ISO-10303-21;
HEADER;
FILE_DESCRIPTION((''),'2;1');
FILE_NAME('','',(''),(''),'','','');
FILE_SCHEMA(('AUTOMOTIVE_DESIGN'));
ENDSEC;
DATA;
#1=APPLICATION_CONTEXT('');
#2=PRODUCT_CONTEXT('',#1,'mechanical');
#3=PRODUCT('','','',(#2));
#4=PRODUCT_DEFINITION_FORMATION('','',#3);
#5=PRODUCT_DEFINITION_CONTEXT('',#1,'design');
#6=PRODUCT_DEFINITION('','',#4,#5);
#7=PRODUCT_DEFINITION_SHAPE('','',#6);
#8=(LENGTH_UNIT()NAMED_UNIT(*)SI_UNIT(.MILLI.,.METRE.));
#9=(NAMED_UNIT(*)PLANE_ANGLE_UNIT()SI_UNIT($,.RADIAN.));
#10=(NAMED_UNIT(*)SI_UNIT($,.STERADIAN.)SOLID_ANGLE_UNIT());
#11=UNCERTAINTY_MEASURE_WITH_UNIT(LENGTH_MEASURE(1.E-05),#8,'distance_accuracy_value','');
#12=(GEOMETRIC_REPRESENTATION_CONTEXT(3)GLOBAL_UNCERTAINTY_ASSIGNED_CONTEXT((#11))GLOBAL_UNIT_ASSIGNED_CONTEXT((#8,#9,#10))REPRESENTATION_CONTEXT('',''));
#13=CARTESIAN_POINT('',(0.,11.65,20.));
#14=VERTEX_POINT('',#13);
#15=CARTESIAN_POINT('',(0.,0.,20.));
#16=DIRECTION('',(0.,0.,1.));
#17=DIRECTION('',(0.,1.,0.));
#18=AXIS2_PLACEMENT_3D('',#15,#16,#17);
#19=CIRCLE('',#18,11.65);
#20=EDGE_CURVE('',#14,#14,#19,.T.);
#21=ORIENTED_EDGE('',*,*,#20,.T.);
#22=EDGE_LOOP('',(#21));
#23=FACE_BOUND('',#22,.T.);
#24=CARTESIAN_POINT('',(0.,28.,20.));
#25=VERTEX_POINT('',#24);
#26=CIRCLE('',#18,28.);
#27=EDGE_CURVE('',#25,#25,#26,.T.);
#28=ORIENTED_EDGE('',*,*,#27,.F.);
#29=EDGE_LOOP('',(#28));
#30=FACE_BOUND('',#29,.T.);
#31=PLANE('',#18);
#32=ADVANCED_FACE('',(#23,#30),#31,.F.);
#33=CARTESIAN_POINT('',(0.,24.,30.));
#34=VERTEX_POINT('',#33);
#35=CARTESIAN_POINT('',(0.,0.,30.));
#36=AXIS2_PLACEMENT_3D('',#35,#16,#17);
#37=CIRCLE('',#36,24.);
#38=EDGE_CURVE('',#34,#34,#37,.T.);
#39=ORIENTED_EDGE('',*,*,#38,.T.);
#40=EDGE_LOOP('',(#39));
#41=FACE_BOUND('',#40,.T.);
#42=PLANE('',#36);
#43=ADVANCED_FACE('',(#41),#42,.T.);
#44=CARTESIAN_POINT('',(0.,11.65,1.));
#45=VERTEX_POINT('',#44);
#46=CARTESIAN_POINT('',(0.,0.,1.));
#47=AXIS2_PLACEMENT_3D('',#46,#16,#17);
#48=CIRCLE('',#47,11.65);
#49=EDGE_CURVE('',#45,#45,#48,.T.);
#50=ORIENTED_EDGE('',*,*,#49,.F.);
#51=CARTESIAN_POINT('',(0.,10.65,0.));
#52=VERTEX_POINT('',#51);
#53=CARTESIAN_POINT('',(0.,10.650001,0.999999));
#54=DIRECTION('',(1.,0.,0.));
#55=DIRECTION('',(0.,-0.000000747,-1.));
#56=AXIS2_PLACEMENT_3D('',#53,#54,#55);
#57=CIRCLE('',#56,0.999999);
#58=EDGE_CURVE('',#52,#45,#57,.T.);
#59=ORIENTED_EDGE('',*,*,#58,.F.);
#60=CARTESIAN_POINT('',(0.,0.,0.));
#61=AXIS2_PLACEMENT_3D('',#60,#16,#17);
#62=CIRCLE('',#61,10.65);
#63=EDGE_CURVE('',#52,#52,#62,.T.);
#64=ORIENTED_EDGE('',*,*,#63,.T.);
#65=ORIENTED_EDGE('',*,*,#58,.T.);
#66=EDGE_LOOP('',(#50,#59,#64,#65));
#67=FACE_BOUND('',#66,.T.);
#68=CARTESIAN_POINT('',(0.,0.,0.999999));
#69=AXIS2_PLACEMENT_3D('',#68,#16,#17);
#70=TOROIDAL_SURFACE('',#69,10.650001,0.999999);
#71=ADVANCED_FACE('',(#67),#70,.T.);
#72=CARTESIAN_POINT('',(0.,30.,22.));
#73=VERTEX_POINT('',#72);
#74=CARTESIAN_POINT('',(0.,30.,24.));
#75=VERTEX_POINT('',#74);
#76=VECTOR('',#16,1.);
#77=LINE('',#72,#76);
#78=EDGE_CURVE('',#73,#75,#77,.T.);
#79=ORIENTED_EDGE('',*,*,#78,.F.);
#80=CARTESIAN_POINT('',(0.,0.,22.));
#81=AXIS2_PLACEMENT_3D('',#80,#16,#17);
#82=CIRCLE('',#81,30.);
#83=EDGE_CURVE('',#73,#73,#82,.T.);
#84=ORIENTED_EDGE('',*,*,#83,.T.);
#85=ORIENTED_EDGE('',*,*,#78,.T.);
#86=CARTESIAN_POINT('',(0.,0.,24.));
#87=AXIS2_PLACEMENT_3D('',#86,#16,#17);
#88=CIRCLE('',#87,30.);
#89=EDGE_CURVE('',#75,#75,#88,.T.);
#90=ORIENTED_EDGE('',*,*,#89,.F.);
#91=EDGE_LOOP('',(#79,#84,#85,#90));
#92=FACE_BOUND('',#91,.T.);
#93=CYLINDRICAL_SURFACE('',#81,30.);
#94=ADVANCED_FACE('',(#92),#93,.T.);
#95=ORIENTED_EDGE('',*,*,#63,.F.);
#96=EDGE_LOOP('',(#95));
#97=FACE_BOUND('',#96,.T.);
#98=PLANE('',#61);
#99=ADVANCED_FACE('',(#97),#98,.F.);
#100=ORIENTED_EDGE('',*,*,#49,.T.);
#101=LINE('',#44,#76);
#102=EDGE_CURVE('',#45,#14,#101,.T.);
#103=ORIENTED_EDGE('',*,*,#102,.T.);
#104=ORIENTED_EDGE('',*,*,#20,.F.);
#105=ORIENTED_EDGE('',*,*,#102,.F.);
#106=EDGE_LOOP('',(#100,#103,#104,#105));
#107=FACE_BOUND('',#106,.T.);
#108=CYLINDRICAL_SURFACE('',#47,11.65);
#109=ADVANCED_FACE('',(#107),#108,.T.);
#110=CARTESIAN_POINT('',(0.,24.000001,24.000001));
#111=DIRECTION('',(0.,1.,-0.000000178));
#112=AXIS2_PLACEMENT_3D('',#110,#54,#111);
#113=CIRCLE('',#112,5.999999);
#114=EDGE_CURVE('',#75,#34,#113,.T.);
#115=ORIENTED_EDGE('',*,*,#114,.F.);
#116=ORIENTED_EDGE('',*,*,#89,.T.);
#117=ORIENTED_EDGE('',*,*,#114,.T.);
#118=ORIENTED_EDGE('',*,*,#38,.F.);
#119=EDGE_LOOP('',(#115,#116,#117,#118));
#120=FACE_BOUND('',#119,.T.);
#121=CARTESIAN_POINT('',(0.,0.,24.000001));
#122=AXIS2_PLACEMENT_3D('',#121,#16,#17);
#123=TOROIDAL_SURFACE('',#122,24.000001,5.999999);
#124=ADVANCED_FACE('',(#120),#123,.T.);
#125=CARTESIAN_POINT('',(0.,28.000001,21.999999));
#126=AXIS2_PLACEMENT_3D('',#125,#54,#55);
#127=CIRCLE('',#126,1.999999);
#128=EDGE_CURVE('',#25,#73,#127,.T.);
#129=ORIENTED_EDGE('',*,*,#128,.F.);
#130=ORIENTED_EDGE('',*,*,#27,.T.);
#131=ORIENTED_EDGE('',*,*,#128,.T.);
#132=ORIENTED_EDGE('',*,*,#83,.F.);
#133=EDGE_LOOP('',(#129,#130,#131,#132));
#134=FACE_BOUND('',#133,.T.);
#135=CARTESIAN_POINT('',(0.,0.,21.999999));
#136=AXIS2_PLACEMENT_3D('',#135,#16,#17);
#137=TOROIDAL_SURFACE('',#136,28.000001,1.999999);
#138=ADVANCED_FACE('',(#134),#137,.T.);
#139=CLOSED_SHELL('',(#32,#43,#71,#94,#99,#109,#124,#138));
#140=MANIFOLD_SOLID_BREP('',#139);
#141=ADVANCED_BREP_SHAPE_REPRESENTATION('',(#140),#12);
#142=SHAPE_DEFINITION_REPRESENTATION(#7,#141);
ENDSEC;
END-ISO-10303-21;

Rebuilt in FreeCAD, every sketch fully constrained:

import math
import FreeCAD as App
import Part
import Sketcher
from FreeCAD import Vector
Q = App.Units.Quantity

doc = App.newDocument("Part")
body = doc.addObject("PartDesign::Body", "Body")

# Sketch on YZ plane
sketch1 = body.newObject("Sketcher::SketchObject", "Sketch")
sketch1.AttachmentSupport = (doc.getObject("YZ_Plane"), [""])
sketch1.MapMode = "FlatFace"
sketch1.addGeometry(Part.LineSegment(Vector(0, 30, 0), Vector(0, 0, 0)), False)
sketch1.addGeometry(Part.LineSegment(Vector(0, 0, 0), Vector(10.7, 0, 0)), False)
sketch1.addGeometry(Part.ArcOfCircle(Part.Circle(Vector(10.7, 1, 0), Vector(0, 0, 1), 1), math.radians(-90), math.radians(0)), False)
sketch1.addGeometry(Part.LineSegment(Vector(11.7, 1, 0), Vector(11.7, 20, 0)), False)
sketch1.addGeometry(Part.LineSegment(Vector(11.7, 20, 0), Vector(28, 20, 0)), False)
sketch1.addGeometry(Part.ArcOfCircle(Part.Circle(Vector(28, 22, 0), Vector(0, 0, 1), 2), math.radians(-90), math.radians(0)), False)
sketch1.addGeometry(Part.LineSegment(Vector(30, 22, 0), Vector(30, 24, 0)), False)
sketch1.addGeometry(Part.ArcOfCircle(Part.Circle(Vector(24, 24, 0), Vector(0, 0, 1), 6), math.radians(0), math.radians(90)), False)
sketch1.addGeometry(Part.LineSegment(Vector(24, 30, 0), Vector(0, 30, 0)), False)
sketch1.addConstraint(Sketcher.Constraint("Coincident", 0, 2, 1, 1))
sketch1.addConstraint(Sketcher.Constraint("Tangent", 1, 2, 2, 1))
sketch1.addConstraint(Sketcher.Constraint("Tangent", 2, 2, 3, 1))
sketch1.addConstraint(Sketcher.Constraint("Coincident", 3, 2, 4, 1))
sketch1.addConstraint(Sketcher.Constraint("Tangent", 4, 2, 5, 1))
sketch1.addConstraint(Sketcher.Constraint("Tangent", 5, 2, 6, 1))
sketch1.addConstraint(Sketcher.Constraint("Tangent", 6, 2, 7, 1))
sketch1.addConstraint(Sketcher.Constraint("Tangent", 7, 2, 8, 1))
sketch1.addConstraint(Sketcher.Constraint("Coincident", 8, 2, 0, 1))
sketch1.addConstraint(Sketcher.Constraint("Vertical", 0))
sketch1.addConstraint(Sketcher.Constraint("Horizontal", 1))
sketch1.addConstraint(Sketcher.Constraint("Vertical", 3))
sketch1.addConstraint(Sketcher.Constraint("Horizontal", 4))
sketch1.addConstraint(Sketcher.Constraint("Vertical", 6))
sketch1.addConstraint(Sketcher.Constraint("Horizontal", 8))
sketch1.addConstraint(Sketcher.Constraint("Coincident", 0, 2, -1, 1))
sketch1.addConstraint(Sketcher.Constraint("Radius", 2, Q("0.999999 mm")))
sketch1.addConstraint(Sketcher.Constraint("Radius", 5, Q("1.999999 mm")))
sketch1.addConstraint(Sketcher.Constraint("Radius", 7, Q("5.999999 mm")))
sketch1.addConstraint(Sketcher.Constraint("DistanceX", 8, 2, 8, 1, Q("24 mm")))
sketch1.addConstraint(Sketcher.Constraint("DistanceY", 0, 2, 0, 1, Q("30 mm")))
sketch1.addConstraint(Sketcher.Constraint("DistanceY", 3, 1, 3, 2, Q("19 mm")))
sketch1.addConstraint(Sketcher.Constraint("DistanceX", 1, 1, 1, 2, Q("10.65 mm")))
revolution = body.newObject("PartDesign::Revolution", "Revolution")
revolution.Profile = sketch1
revolution.ReferenceAxis = (sketch1, ["V_Axis"])
revolution.Angle = 360

doc.recompute()
